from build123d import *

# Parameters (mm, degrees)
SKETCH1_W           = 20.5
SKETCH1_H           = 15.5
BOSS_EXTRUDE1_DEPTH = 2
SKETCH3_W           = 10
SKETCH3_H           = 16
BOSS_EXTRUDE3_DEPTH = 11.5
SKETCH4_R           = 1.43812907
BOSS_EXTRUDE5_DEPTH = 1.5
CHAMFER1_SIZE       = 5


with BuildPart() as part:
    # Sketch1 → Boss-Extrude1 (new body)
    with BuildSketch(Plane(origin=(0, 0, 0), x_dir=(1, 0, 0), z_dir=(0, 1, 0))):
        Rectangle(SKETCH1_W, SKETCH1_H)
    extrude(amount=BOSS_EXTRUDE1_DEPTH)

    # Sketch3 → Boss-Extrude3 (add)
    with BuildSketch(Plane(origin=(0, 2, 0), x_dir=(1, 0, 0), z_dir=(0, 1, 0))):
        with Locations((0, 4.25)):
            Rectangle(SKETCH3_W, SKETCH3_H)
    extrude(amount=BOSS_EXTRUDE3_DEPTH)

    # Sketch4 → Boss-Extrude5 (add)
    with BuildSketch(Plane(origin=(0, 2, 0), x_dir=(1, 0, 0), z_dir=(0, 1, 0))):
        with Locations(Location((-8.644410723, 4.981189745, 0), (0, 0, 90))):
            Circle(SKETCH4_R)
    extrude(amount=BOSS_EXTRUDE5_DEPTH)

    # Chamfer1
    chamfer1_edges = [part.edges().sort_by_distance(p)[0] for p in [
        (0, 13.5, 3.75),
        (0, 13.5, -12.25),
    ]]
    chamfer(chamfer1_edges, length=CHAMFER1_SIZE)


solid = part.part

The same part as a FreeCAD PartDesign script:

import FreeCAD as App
import Part
import Sketcher

V = App.Vector
Q = App.Units.Quantity


def edges_at(feature, points):
    """Names of the edges that pass closest to the given points."""
    edges = feature.Shape.Edges
    near = lambda p: min(range(len(edges)), key=lambda i: edges[i].distToShape(Part.Vertex(*p))[0])
    return sorted({f"Edge{near(p) + 1}" for p in points})

doc = App.newDocument("Part")
body = doc.addObject("PartDesign::Body", "Body")

# Sketch on XZ plane
sketch1 = doc.addObject("Sketcher::SketchObject", "Sketch")
body.addObject(sketch1)
sketch1.AttachmentSupport = (doc.XZ_Plane, [""])
sketch1.MapMode = "FlatFace"
sketch1.addGeometry(Part.LineSegment(V(-10, -8, 0), V(-10, 8, 0)), False)
sketch1.addGeometry(Part.LineSegment(V(-10, 8, 0), V(10, 8, 0)), False)
sketch1.addGeometry(Part.LineSegment(V(10, 8, 0), V(10, -8, 0)), False)
sketch1.addGeometry(Part.LineSegment(V(10, -8, 0), V(-10, -8, 0)), False)
sketch1.addConstraint(Sketcher.Constraint("Coincident", 0, 2, 1, 1))
sketch1.addConstraint(Sketcher.Constraint("Coincident", 1, 2, 2, 1))
sketch1.addConstraint(Sketcher.Constraint("Coincident", 2, 2, 3, 1))
sketch1.addConstraint(Sketcher.Constraint("Coincident", 3, 2, 0, 1))
sketch1.addConstraint(Sketcher.Constraint("Vertical", 0))
sketch1.addConstraint(Sketcher.Constraint("Horizontal", 1))
sketch1.addConstraint(Sketcher.Constraint("Vertical", 2))
sketch1.addConstraint(Sketcher.Constraint("Horizontal", 3))
sketch1.addConstraint(Sketcher.Constraint("Symmetric", 0, 2, 2, 2, -1, 1))
sketch1.addConstraint(Sketcher.Constraint("DistanceX", 1, 1, 1, 2, Q("20.5 mm")))
sketch1.addConstraint(Sketcher.Constraint("DistanceY", 0, 1, 0, 2, Q("15.5 mm")))
pad1 = doc.addObject("PartDesign::Pad", "Pad")
body.addObject(pad1)
pad1.Profile = sketch1
pad1.Length = 2
pad1.Reversed = True

# Sketch on XZ plane
sketch2 = doc.addObject("Sketcher::SketchObject", "Sketch001")
body.addObject(sketch2)
sketch2.AttachmentSupport = (doc.XZ_Plane, [""])
sketch2.MapMode = "FlatFace"
sketch2.AttachmentOffset = App.Placement(V(0, 0, -2), App.Rotation())
sketch2.addGeometry(Part.LineSegment(V(-5, -12, 0), V(-5, 4, 0)), False)
sketch2.addGeometry(Part.LineSegment(V(-5, 4, 0), V(5, 4, 0)), False)
sketch2.addGeometry(Part.LineSegment(V(5, 4, 0), V(5, -12, 0)), False)
sketch2.addGeometry(Part.LineSegment(V(5, -12, 0), V(-5, -12, 0)), False)
sketch2.addConstraint(Sketcher.Constraint("Coincident", 0, 2, 1, 1))
sketch2.addConstraint(Sketcher.Constraint("Coincident", 1, 2, 2, 1))
sketch2.addConstraint(Sketcher.Constraint("Coincident", 2, 2, 3, 1))
sketch2.addConstraint(Sketcher.Constraint("Coincident", 3, 2, 0, 1))
sketch2.addConstraint(Sketcher.Constraint("Vertical", 0))
sketch2.addConstraint(Sketcher.Constraint("Horizontal", 1))
sketch2.addConstraint(Sketcher.Constraint("Vertical", 2))
sketch2.addConstraint(Sketcher.Constraint("Horizontal", 3))
sketch2.addConstraint(Sketcher.Constraint("DistanceX", 1, 1, 1, 2, Q("10 mm")))
sketch2.addConstraint(Sketcher.Constraint("DistanceY", 0, 1, 0, 2, Q("16 mm")))
sketch2.addConstraint(Sketcher.Constraint("DistanceX", 0, 2, -1, 1, Q("5 mm")))
sketch2.addConstraint(Sketcher.Constraint("DistanceY", -1, 1, 0, 2, Q("3.75 mm")))
pad2 = doc.addObject("PartDesign::Pad", "Pad001")
body.addObject(pad2)
pad2.Profile = sketch2
pad2.Length = 11.5
pad2.Reversed = True

# Sketch on XZ plane
sketch3 = doc.addObject("Sketcher::SketchObject", "Sketch002")
body.addObject(sketch3)
sketch3.AttachmentSupport = (doc.XZ_Plane, [""])
sketch3.MapMode = "FlatFace"
sketch3.AttachmentOffset = App.Placement(V(0, 0, -2), App.Rotation())
sketch3.addGeometry(Part.Circle(V(-8.6, -5, 0), V(0, 0, 1), 1.4), False)
sketch3.addConstraint(Sketcher.Constraint("Diameter", 0, Q("2.876258 mm")))
sketch3.addConstraint(Sketcher.Constraint("DistanceX", 0, 3, -1, 1, Q("8.644411 mm")))
sketch3.addConstraint(Sketcher.Constraint("DistanceY", 0, 3, -1, 1, Q("4.98119 mm")))
pad3 = doc.addObject("PartDesign::Pad", "Pad002")
body.addObject(pad3)
pad3.Profile = sketch3
pad3.Length = 1.5
pad3.Reversed = True
doc.recompute()

chamfer = doc.addObject("PartDesign::Chamfer", "Chamfer")
body.addObject(chamfer)
chamfer.Base = (pad3, edges_at(pad3, [(0, 13.5, 3.75), (0, 13.5, -12.25)]))
chamfer.Size = 5

doc.recompute()
